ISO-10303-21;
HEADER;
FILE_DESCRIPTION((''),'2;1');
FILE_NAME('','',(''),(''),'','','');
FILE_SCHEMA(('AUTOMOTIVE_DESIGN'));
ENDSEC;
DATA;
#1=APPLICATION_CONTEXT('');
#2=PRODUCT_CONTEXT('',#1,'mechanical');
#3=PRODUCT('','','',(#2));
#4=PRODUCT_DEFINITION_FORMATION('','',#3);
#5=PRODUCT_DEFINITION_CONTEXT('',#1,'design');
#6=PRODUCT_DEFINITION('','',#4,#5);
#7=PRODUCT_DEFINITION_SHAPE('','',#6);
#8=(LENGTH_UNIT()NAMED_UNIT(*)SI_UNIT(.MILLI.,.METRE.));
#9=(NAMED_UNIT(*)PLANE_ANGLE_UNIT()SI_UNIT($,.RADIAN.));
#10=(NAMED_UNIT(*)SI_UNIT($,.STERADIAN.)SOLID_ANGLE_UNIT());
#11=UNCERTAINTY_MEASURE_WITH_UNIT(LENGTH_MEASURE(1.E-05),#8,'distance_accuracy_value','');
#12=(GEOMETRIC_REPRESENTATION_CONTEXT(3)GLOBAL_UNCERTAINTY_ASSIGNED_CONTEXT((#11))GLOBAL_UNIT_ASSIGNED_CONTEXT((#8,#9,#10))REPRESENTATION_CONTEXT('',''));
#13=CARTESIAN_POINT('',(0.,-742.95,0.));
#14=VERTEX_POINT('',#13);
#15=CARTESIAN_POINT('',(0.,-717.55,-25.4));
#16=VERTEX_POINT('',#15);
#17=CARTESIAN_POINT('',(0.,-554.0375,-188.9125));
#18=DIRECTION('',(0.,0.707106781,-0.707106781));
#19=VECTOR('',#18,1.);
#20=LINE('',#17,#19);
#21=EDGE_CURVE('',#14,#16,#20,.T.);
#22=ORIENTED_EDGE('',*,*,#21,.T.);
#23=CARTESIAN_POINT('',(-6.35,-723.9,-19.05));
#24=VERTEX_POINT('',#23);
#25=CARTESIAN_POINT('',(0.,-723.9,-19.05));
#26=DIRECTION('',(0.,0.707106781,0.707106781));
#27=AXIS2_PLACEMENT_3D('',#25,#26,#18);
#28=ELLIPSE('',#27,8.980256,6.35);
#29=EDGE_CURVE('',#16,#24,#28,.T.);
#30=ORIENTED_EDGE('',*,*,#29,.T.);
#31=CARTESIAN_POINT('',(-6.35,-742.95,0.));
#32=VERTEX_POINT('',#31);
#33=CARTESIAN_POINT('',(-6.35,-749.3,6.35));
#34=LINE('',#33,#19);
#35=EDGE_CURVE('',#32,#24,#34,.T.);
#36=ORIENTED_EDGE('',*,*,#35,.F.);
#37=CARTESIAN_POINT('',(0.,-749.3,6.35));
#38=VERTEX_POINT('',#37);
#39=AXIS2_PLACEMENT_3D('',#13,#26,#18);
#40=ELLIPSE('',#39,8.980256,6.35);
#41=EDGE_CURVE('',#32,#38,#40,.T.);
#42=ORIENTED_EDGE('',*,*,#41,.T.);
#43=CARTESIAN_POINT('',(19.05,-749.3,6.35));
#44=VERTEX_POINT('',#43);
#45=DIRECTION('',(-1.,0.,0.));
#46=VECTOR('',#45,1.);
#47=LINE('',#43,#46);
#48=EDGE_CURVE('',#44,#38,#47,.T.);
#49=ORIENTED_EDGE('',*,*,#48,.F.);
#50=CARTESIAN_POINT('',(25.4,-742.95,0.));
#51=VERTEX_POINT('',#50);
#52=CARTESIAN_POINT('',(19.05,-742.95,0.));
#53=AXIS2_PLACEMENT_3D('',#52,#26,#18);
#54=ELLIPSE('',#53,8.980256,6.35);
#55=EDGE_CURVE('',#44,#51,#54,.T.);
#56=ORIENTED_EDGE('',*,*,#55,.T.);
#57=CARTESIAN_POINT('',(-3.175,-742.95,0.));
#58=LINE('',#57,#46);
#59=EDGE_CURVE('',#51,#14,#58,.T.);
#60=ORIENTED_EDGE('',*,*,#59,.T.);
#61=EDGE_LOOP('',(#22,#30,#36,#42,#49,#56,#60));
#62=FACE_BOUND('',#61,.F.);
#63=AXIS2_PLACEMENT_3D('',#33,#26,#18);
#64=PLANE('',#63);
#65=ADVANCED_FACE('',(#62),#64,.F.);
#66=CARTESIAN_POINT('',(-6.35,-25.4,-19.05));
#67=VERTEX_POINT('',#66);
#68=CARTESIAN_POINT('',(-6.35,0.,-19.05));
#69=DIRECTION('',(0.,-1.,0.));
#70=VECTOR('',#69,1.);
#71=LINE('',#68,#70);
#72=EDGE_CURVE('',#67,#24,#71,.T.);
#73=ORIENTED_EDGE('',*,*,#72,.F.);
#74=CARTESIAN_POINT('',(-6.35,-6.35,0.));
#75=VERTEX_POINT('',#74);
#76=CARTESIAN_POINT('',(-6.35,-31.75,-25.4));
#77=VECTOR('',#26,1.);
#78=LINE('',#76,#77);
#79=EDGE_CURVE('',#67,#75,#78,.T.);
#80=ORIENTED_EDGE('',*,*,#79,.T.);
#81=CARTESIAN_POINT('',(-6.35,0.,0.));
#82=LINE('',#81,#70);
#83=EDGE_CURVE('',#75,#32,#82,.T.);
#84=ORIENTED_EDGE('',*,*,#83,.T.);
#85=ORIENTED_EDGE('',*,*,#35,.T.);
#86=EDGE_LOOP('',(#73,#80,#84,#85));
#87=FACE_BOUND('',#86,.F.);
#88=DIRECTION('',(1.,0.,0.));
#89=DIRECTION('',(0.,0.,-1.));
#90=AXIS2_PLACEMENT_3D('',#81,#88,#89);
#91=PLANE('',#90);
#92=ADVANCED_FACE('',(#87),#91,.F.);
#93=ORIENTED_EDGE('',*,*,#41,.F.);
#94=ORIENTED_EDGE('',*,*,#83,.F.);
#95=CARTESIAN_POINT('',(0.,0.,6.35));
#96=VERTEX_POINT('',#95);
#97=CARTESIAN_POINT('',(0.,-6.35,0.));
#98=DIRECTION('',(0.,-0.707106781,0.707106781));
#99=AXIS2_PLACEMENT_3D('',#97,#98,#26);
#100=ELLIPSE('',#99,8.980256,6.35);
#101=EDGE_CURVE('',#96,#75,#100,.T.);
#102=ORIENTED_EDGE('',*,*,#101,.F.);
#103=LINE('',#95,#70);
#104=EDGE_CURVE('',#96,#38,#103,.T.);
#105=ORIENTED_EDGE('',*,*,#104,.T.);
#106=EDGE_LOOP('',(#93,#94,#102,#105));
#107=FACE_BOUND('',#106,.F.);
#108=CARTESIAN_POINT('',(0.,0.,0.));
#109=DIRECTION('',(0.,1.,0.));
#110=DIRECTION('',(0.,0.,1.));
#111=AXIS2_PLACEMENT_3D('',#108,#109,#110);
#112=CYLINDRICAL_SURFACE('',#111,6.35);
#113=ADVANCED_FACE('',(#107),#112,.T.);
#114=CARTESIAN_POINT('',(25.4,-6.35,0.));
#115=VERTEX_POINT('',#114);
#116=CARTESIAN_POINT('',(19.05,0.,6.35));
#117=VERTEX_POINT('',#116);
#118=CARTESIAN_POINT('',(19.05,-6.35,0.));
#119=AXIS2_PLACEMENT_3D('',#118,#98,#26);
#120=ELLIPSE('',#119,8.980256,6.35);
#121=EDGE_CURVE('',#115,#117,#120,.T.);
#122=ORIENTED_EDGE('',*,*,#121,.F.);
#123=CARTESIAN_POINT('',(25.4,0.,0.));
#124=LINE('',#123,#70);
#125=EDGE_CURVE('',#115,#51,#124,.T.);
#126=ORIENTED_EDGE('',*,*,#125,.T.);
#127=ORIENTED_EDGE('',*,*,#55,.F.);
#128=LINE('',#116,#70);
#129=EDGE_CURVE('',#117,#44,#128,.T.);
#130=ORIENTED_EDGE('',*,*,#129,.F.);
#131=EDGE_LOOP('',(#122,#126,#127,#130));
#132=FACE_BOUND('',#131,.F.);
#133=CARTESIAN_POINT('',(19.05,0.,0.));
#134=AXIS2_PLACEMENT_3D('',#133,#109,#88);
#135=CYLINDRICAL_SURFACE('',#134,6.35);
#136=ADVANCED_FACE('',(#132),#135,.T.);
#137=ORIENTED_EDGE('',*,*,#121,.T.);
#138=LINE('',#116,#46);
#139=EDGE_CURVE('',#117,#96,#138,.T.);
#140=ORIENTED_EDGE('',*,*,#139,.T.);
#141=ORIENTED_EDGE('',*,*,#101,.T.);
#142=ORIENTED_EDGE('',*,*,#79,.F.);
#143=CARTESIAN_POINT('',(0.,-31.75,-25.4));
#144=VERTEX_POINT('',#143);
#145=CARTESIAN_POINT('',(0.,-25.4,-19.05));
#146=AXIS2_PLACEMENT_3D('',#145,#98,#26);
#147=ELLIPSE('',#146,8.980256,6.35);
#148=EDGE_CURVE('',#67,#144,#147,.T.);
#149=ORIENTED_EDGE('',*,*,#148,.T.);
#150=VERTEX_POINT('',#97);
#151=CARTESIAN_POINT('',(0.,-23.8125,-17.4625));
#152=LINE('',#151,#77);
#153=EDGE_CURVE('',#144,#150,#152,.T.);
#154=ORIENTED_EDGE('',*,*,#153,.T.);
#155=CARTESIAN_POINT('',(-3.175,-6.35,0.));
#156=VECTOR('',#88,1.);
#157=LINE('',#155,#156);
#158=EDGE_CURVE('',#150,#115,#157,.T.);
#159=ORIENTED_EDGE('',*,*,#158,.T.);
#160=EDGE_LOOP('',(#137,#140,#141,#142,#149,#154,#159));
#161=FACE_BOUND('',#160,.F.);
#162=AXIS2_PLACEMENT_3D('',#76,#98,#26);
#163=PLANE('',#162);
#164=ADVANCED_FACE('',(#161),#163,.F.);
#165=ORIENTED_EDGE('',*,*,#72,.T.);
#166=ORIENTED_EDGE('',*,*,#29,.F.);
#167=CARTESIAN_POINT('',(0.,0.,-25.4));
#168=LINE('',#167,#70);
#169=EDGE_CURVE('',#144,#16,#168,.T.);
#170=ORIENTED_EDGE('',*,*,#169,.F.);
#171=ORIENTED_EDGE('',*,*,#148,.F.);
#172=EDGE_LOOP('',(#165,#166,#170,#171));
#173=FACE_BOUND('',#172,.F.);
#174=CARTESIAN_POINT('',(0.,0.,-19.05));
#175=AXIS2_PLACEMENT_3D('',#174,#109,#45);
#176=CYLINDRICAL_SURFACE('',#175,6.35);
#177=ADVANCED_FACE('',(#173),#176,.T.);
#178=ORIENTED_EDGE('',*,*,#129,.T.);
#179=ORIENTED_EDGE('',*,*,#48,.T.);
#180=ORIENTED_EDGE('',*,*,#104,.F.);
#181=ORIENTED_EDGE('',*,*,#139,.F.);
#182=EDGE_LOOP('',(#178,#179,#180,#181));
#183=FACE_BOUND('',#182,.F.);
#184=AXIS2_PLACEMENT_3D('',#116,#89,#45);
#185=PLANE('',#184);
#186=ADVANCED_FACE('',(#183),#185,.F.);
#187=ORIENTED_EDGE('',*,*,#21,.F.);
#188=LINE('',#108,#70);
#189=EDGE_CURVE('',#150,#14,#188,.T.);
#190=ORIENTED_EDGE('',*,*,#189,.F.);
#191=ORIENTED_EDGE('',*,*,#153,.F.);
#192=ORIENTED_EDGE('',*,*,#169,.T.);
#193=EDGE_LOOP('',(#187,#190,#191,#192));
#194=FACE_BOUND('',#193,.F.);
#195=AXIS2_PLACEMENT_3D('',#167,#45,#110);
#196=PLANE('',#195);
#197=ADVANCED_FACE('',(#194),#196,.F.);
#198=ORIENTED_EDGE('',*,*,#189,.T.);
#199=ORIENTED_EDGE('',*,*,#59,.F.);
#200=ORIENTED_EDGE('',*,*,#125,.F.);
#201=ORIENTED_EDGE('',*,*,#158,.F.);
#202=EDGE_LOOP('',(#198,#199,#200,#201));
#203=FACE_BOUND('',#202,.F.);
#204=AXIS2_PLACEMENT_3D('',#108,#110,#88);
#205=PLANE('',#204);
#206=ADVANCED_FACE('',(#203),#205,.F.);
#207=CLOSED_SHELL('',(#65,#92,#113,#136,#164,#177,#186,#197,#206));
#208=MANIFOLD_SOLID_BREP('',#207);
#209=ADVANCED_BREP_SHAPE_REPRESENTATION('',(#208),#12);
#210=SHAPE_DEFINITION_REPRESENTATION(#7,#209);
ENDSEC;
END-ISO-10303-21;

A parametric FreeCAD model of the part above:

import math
import FreeCAD as App
import Part
import Sketcher
Q = App.Units.Quantity

doc = App.newDocument("Part")
body = doc.addObject("PartDesign::Body", "Body")

# Sketch on XZ plane
sketch1 = body.newObject("Sketcher::SketchObject", "Sketch")
sketch1.AttachmentSupport = (doc.getObject("XZ_Plane"), [""])
sketch1.MapMode = "FlatFace"
sketch1.addGeometry([
    Part.LineSegment(App.Vector(0, -25, 0), App.Vector(0, 0, 0)),  # 0
    Part.LineSegment(App.Vector(0, 0, 0), App.Vector(25, 0, 0)),  # 1
    Part.ArcOfCircle(Part.Circle(App.Vector(19, 0, 0), App.Vector(0, 0, 1), 6), math.radians(0), math.radians(90)),  # 2
    Part.LineSegment(App.Vector(19, 6, 0), App.Vector(0, 6, 0)),  # 3
    Part.ArcOfCircle(Part.Circle(App.Vector(0, 0, 0), App.Vector(0, 0, 1), 6), math.radians(90), math.radians(180)),  # 4
    Part.LineSegment(App.Vector(-6, 0, 0), App.Vector(-6, -19, 0)),  # 5
    Part.ArcOfCircle(Part.Circle(App.Vector(0, -19, 0), App.Vector(0, 0, 1), 6), math.radians(180), math.radians(270)),  # 6
], False)
sketch1.addConstraint([
    Sketcher.Constraint("Coincident", 0, 2, 1, 1),
    Sketcher.Constraint("Coincident", 1, 2, 2, 1),
    Sketcher.Constraint("Tangent", 2, 2, 3, 1),
    Sketcher.Constraint("Tangent", 3, 2, 4, 1),
    Sketcher.Constraint("Tangent", 4, 2, 5, 1),
    Sketcher.Constraint("Tangent", 5, 2, 6, 1),
    Sketcher.Constraint("Coincident", 6, 2, 0, 1),
    Sketcher.Constraint("Vertical", 0),
    Sketcher.Constraint("Horizontal", 1),
    Sketcher.Constraint("Horizontal", 3),
    Sketcher.Constraint("Vertical", 5),
    Sketcher.Constraint("Coincident", 4, 3, -1, 1),
    Sketcher.Constraint("Coincident", 0, 2, -1, 1),
    Sketcher.Constraint("Equal", 2, 4),
    Sketcher.Constraint("Equal", 4, 6),
    Sketcher.Constraint("Equal", 1, 0),
    Sketcher.Constraint("DistanceX", 1, 1, 1, 2, Q("1 in")),
    Sketcher.Constraint("Radius", 2, Q("0.25 in")),
])
pad1 = body.newObject("PartDesign::Pad", "Pad")
pad1.Profile = sketch1
pad1.Length = Q("29.5 in")

# Sketch on YZ plane
sketch2 = body.newObject("Sketcher::SketchObject", "Sketch001")
sketch2.AttachmentSupport = (doc.getObject("YZ_Plane"), [""])
sketch2.MapMode = "FlatFace"
sketch2.AttachmentOffset = App.Placement(App.Vector(0, 0, -0.25 * 25.4), App.Rotation())
sketch2.addGeometry([
    Part.LineSegment(App.Vector(-749, -25, 0), App.Vector(-749, 6, 0)),
    Part.LineSegment(App.Vector(-749, 6, 0), App.Vector(-718, -25, 0)),
    Part.LineSegment(App.Vector(-718, -25, 0), App.Vector(-749, -25, 0)),
], False)
sketch2.addConstraint([
    Sketcher.Constraint("Coincident", 0, 2, 1, 1),
    Sketcher.Constraint("Coincident", 1, 2, 2, 1),
    Sketcher.Constraint("Coincident", 2, 2, 0, 1),
    Sketcher.Constraint("Vertical", 0),
    Sketcher.Constraint("Horizontal", 2),
    Sketcher.Constraint("Equal", 2, 0),
    Sketcher.Constraint("DistanceY", 1, 2, -1, 1, Q("1 in")),
    Sketcher.Constraint("DistanceX", 2, 2, 2, 1, Q("1.25 in")),
    Sketcher.Constraint("DistanceX", 0, 2, -1, 1, Q("29.5 in")),
])
pocket1 = body.newObject("PartDesign::Pocket", "Pocket")
pocket1.Profile = sketch2
pocket1.Type = "ThroughAll"
pocket1.Reversed = True

# Sketch on YZ plane
sketch3 = body.newObject("Sketcher::SketchObject", "Sketch002")
sketch3.AttachmentSupport = (doc.getObject("YZ_Plane"), [""])
sketch3.MapMode = "FlatFace"
sketch3.AttachmentOffset = App.Placement(App.Vector(0, 0, -0.25 * 25.4), App.Rotation())
sketch3.addGeometry([
    Part.LineSegment(App.Vector(-32, -25, 0), App.Vector(0, 6, 0)),
    Part.LineSegment(App.Vector(0, 6, 0), App.Vector(0, -25, 0)),
    Part.LineSegment(App.Vector(0, -25, 0), App.Vector(-32, -25, 0)),
], False)
sketch3.addConstraint([
    Sketcher.Constraint("Coincident", 0, 2, 1, 1),
    Sketcher.Constraint("Coincident", 1, 2, 2, 1),
    Sketcher.Constraint("Coincident", 2, 2, 0, 1),
    Sketcher.Constraint("Vertical", 1),
    Sketcher.Constraint("Horizontal", 2),
    Sketcher.Constraint("PointOnObject", 0, 2, -2),
    Sketcher.Constraint("Equal", 2, 1),
    Sketcher.Constraint("DistanceY", 1, 2, -1, 1, Q("1 in")),
    Sketcher.Constraint("DistanceX", 2, 2, 2, 1, Q("1.25 in")),
])
pocket2 = body.newObject("PartDesign::Pocket", "Pocket001")
pocket2.Profile = sketch3
pocket2.Length = Q("2 in")
pocket2.Reversed = True

doc.recompute()
